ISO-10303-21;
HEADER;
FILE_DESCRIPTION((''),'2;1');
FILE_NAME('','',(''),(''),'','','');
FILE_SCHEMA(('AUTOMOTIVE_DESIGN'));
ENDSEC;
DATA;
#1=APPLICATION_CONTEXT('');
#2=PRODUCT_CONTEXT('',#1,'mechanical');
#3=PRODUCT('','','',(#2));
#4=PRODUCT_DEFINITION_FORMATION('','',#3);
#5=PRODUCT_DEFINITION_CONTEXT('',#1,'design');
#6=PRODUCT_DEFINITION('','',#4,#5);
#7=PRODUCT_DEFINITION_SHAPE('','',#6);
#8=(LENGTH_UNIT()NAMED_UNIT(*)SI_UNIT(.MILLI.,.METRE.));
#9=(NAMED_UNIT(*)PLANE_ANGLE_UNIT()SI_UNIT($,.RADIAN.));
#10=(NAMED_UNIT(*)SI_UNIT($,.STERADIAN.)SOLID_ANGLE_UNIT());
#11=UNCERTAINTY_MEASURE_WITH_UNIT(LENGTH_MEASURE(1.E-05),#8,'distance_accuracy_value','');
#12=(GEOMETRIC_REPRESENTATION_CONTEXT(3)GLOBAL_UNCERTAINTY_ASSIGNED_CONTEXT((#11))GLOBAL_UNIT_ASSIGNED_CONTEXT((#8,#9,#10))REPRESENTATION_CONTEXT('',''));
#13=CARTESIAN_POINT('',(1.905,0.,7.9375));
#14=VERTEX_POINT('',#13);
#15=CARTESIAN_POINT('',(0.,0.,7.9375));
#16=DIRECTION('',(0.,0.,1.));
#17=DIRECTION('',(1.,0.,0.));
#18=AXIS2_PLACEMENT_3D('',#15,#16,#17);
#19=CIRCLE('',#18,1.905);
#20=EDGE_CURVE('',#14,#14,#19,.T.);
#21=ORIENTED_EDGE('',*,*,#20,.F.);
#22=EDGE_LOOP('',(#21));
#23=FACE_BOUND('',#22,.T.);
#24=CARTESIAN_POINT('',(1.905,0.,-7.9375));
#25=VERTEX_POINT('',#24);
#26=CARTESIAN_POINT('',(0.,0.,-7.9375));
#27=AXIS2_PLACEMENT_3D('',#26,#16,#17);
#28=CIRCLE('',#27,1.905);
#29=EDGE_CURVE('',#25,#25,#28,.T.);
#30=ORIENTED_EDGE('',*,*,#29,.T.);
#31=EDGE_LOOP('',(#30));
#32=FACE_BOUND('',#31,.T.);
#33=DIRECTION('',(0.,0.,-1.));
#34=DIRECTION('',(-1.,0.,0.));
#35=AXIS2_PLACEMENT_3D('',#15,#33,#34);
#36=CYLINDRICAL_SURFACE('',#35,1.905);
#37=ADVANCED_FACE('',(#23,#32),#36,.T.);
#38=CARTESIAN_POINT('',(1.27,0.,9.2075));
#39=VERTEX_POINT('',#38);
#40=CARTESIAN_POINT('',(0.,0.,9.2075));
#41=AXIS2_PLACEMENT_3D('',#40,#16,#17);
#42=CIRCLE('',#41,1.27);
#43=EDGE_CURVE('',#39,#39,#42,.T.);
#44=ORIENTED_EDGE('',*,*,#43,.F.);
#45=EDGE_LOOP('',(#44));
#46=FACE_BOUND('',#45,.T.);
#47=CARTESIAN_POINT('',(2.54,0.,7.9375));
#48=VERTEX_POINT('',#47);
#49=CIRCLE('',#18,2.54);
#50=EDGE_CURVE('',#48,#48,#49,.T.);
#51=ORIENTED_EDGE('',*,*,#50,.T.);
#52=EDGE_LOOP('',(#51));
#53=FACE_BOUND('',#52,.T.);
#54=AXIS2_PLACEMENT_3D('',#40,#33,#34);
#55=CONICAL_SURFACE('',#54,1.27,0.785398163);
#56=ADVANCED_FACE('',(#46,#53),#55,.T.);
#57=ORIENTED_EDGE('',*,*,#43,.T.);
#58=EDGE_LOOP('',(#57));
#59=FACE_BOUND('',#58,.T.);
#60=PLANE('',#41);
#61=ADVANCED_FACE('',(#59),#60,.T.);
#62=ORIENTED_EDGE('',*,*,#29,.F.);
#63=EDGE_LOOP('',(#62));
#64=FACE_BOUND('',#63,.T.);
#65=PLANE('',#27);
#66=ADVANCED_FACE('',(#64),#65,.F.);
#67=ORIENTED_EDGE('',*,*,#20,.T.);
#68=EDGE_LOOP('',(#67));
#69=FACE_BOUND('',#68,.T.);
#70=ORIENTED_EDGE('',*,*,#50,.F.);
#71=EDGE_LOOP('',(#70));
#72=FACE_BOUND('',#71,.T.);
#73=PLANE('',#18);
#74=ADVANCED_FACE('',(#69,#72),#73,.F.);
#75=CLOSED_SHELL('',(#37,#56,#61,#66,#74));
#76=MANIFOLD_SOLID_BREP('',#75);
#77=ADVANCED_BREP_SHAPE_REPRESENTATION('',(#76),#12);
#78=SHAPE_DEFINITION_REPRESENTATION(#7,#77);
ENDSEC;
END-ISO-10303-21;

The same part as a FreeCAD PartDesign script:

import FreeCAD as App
import Part
import Sketcher
from FreeCAD import Vector
Q = App.Units.Quantity

doc = App.newDocument("Part")
body = doc.addObject("PartDesign::Body", "Body")

sketch1 = body.newObject("Sketcher::SketchObject", "Sketch")
sketch1.AttachmentSupport = (doc.getObject("XY_Plane"), [""])
sketch1.MapMode = "FlatFace"
sketch1.addGeometry(Part.Circle(Vector(0, 0, 0), Vector(0, 0, 1), 1.9), False)
sketch1.addConstraint(Sketcher.Constraint("Coincident", 0, 3, -1, 1))
sketch1.addConstraint(Sketcher.Constraint("Diameter", 0, Q("0.15 in")))
pad1 = body.newObject("PartDesign::Pad", "Pad")
pad1.Profile = sketch1
pad1.Length = Q("0.625 in")
pad1.Midplane = True

sketch2 = body.newObject("Sketcher::SketchObject", "Sketch001")
sketch2.AttachmentSupport = (doc.getObject("XY_Plane"), [""])
sketch2.MapMode = "FlatFace"
sketch2.AttachmentOffset = App.Placement(Vector(0, 0, 0.3125 * 25.4), App.Rotation())
sketch2.addGeometry(Part.Circle(Vector(0, 0, 0), Vector(0, 0, 1), 2.5), False)
sketch2.addConstraint(Sketcher.Constraint("Coincident", 0, 3, -1, 1))
sketch2.addConstraint(Sketcher.Constraint("Diameter", 0, Q("0.2 in")))

sketch3 = body.newObject("Sketcher::SketchObject", "Sketch002")
sketch3.AttachmentSupport = (doc.getObject("XY_Plane"), [""])
sketch3.MapMode = "FlatFace"
sketch3.AttachmentOffset = App.Placement(Vector(0, 0, 0.3625 * 25.4), App.Rotation())
sketch3.addGeometry(Part.Circle(Vector(0, 0, 0), Vector(0, 0, 1), 1.3), False)
sketch3.addConstraint(Sketcher.Constraint("Coincident", 0, 3, -1, 1))
sketch3.addConstraint(Sketcher.Constraint("Diameter", 0, Q("0.1 in")))

additiveloft = body.newObject("PartDesign::AdditiveLoft", "AdditiveLoft")
additiveloft.Profile = sketch2
additiveloft.Sections = [sketch3]

doc.recompute()
